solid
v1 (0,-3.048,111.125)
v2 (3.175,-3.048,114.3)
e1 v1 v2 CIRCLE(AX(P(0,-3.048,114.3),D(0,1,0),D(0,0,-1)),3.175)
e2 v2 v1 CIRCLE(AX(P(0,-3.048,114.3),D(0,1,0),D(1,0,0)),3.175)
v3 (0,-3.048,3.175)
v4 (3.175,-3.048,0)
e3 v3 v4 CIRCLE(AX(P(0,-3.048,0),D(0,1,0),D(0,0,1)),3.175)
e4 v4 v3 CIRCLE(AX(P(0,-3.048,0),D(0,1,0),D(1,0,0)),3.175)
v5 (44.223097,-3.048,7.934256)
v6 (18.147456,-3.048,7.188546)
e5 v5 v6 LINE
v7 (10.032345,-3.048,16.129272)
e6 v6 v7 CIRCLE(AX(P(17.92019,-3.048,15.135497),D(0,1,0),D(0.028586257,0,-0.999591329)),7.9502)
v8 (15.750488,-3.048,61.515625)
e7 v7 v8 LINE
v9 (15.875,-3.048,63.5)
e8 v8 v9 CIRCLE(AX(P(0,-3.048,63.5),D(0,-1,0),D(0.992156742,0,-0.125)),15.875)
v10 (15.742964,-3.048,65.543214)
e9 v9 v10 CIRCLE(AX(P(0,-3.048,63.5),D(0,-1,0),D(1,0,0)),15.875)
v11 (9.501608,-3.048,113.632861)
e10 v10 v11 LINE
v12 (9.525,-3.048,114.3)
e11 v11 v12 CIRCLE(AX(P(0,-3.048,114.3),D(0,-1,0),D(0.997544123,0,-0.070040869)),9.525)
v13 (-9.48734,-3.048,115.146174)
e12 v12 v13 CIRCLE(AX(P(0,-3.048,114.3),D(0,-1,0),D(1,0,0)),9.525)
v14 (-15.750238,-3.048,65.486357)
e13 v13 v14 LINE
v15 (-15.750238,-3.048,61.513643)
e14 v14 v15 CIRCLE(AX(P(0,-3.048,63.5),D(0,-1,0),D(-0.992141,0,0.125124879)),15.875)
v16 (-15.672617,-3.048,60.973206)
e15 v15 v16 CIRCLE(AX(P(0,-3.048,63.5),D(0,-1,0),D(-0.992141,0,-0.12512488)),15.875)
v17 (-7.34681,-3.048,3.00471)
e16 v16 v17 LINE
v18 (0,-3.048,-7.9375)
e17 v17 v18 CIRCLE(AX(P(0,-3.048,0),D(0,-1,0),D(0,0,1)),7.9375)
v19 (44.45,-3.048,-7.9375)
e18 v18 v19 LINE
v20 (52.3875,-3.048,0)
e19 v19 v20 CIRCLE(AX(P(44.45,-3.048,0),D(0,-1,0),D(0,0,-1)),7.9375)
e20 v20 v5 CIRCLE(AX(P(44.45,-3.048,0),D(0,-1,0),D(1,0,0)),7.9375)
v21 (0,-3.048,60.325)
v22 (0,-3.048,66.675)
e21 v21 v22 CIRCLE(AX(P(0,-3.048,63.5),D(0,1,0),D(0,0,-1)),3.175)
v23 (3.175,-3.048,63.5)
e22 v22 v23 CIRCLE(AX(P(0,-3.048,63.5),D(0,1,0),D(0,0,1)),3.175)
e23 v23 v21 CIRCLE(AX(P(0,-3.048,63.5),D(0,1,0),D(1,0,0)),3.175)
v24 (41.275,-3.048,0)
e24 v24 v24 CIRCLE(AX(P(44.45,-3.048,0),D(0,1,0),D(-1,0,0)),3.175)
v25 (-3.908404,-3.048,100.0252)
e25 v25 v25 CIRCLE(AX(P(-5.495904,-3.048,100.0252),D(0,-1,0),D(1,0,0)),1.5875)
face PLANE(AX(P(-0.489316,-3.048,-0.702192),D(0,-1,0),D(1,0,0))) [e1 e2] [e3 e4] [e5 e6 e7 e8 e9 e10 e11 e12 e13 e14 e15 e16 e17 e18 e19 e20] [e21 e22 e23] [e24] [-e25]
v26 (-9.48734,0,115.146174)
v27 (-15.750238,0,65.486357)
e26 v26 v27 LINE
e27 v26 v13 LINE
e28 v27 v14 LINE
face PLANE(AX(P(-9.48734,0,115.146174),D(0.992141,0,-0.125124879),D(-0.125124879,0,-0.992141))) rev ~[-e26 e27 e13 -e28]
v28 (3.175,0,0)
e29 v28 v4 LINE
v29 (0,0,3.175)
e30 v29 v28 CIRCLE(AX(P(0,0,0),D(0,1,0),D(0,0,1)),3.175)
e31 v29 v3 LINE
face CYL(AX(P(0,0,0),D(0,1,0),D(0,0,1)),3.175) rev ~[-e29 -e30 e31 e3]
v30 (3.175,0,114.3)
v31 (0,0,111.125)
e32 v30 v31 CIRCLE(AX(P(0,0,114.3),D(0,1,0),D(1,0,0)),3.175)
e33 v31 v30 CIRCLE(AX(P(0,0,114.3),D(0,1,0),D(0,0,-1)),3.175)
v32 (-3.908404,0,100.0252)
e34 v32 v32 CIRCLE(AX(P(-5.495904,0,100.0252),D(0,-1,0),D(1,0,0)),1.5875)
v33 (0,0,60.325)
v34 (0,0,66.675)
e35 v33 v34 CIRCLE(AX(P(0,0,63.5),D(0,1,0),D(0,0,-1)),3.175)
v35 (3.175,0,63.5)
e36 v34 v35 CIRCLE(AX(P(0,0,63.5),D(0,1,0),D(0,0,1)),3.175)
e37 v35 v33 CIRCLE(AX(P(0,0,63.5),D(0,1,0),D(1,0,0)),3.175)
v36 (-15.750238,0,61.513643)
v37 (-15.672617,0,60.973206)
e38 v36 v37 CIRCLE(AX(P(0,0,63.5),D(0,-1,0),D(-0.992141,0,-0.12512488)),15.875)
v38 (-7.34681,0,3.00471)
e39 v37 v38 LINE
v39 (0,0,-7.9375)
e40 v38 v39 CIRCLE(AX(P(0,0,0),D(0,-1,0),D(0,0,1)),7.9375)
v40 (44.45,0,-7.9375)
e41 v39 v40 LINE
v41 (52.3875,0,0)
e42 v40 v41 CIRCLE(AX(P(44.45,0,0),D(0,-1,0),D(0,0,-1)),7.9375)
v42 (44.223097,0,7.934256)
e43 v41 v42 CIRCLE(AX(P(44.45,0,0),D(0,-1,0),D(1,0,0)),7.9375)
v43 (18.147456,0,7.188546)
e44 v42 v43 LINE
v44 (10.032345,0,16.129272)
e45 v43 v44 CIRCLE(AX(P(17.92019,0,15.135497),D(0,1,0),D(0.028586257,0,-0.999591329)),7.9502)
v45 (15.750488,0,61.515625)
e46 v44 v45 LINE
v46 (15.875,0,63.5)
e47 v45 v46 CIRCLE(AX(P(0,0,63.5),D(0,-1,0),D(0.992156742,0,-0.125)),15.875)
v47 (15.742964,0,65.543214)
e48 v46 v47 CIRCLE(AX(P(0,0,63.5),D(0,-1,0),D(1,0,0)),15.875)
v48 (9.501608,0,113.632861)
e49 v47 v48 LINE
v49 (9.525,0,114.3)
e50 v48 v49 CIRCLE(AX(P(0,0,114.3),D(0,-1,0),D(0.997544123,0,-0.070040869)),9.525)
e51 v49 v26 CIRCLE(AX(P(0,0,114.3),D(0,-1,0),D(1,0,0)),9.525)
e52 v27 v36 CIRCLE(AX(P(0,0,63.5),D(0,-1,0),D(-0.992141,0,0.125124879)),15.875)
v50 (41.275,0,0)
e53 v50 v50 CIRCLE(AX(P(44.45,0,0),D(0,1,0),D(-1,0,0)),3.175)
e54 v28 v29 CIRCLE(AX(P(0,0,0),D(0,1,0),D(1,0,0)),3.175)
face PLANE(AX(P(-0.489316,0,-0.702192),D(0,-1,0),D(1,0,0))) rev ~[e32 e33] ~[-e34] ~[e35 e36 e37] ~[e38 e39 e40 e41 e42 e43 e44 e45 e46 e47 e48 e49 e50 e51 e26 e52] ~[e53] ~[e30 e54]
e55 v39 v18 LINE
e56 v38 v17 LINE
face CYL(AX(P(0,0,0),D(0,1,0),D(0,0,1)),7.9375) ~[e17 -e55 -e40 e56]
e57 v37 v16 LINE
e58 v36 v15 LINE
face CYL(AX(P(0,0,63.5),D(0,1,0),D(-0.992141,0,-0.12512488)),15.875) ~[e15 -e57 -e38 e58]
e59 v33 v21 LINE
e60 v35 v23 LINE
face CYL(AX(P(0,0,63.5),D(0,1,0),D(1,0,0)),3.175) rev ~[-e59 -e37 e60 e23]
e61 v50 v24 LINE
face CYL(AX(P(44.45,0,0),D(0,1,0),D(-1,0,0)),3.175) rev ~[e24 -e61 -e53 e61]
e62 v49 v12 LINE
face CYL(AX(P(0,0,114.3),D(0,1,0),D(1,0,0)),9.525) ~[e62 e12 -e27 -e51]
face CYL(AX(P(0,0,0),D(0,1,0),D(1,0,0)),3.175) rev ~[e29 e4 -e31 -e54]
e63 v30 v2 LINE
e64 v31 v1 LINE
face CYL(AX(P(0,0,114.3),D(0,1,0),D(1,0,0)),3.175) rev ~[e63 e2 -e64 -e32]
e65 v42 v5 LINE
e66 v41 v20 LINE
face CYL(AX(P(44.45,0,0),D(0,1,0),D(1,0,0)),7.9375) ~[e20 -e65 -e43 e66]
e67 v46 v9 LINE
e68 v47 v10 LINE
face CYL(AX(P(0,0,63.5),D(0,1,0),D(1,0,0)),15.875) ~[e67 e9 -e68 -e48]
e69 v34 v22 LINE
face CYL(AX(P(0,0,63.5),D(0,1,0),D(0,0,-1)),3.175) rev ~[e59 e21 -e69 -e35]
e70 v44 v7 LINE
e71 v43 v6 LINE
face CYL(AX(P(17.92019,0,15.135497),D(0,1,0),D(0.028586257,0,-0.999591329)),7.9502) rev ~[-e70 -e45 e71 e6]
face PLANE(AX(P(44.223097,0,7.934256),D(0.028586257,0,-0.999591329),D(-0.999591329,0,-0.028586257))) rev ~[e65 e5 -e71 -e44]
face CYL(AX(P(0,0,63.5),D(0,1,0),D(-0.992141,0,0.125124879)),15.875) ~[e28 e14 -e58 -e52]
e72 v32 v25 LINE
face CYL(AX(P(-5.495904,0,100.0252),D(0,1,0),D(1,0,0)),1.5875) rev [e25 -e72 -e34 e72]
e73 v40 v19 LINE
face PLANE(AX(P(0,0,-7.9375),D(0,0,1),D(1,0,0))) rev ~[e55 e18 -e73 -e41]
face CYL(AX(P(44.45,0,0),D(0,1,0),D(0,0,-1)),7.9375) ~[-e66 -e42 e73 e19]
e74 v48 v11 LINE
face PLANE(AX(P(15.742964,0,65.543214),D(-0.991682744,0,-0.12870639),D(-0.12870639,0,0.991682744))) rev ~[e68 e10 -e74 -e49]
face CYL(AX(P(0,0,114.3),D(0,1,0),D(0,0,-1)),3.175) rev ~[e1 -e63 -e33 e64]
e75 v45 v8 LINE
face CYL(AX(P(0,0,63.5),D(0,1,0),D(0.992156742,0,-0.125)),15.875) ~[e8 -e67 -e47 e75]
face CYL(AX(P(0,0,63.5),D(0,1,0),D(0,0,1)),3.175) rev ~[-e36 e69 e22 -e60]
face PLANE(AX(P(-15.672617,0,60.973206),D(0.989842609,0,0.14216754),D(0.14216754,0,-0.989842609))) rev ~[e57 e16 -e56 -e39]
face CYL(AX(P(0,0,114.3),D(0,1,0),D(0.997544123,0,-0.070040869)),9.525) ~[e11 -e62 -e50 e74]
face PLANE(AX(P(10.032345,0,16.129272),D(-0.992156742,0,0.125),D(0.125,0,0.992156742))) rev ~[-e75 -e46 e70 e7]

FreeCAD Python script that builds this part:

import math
import FreeCAD as App
import Part
import Sketcher
from FreeCAD import Vector
Q = App.Units.Quantity

doc = App.newDocument("Part")
body = doc.addObject("PartDesign::Body", "Body")

# Sketch on XZ plane
sketch1 = doc.addObject("Sketcher::SketchObject", "Sketch")
body.addObject(sketch1)
sketch1.AttachmentSupport = (doc.XZ_Plane, [""])
sketch1.MapMode = "FlatFace"
sketch1.addGeometry(Part.ArcOfCircle(Part.Circle(Vector(0, 0, 0), Vector(0, 0, 1), 7.9375), math.radians(157.756344), math.radians(270)), False)
sketch1.addGeometry(Part.LineSegment(Vector(0, -7.9375, 0), Vector(44.45, -7.9375, 0)), False)
sketch1.addGeometry(Part.ArcOfCircle(Part.Circle(Vector(44.45, 0, 0), Vector(0, 0, 1), 7.9375), math.radians(-90), math.radians(0)), False)
sketch1.addGeometry(Part.ArcOfCircle(Part.Circle(Vector(44.45, 0, 0), Vector(0, 0, 1), 7.9375), math.radians(0), math.radians(91.638095)), False)
sketch1.addGeometry(Part.LineSegment(Vector(44.223097, 7.934256, 0), Vector(18.147456, 7.188546, 0)), False)
sketch1.addGeometry(Part.ArcOfCircle(Part.Circle(Vector(17.92019, 15.135497, 0), Vector(0, 0, 1), 7.9502), math.radians(172.819244), math.radians(271.638095)), False)
sketch1.addGeometry(Part.LineSegment(Vector(10.032345, 16.129272, 0), Vector(15.750488, 61.515625, 0)), False)
sketch1.addGeometry(Part.ArcOfCircle(Part.Circle(Vector(0, 63.5, 0), Vector(0, 0, 1), 15.875), math.radians(-7.180756), math.radians(0)), False)
sketch1.addGeometry(Part.ArcOfCircle(Part.Circle(Vector(0, 63.5, 0), Vector(0, 0, 1), 15.875), math.radians(0), math.radians(7.394846)), False)
sketch1.addGeometry(Part.LineSegment(Vector(15.742964, 65.543214, 0), Vector(9.501608, 113.632861, 0)), False)
sketch1.addGeometry(Part.ArcOfCircle(Part.Circle(Vector(0, 114.3, 0), Vector(0, 0, 1), 9.525), math.radians(-4.016335), math.radians(0)), False)
sketch1.addGeometry(Part.ArcOfCircle(Part.Circle(Vector(0, 114.3, 0), Vector(0, 0, 1), 9.525), math.radians(0), math.radians(174.903285)), False)
sketch1.addGeometry(Part.LineSegment(Vector(-9.48734, 115.146174, 0), Vector(-15.750238, 65.486357, 0)), False)
sketch1.addGeometry(Part.ArcOfCircle(Part.Circle(Vector(0, 63.5, 0), Vector(0, 0, 1), 15.875), math.radians(172.812033), math.radians(187.187967)), False)
sketch1.addGeometry(Part.ArcOfCircle(Part.Circle(Vector(0, 63.5, 0), Vector(0, 0, 1), 15.875), math.radians(-172.812033), math.radians(-170.841384)), False)
sketch1.addGeometry(Part.LineSegment(Vector(-15.672617, 60.973206, 0), Vector(-7.34681, 3.00471, 0)), False)
sketch1.addGeometry(Part.ArcOfCircle(Part.Circle(Vector(0, 0, 0), Vector(0, 0, 1), 3.175), math.radians(90), math.radians(360)), False)
sketch1.addGeometry(Part.ArcOfCircle(Part.Circle(Vector(0, 0, 0), Vector(0, 0, 1), 3.175), math.radians(0), math.radians(90)), False)
sketch1.addGeometry(Part.Circle(Vector(44.45, 0, 0), Vector(0, 0, 1), 3.175), False)
sketch1.addGeometry(Part.ArcOfCircle(Part.Circle(Vector(0, 63.5, 0), Vector(0, 0, 1), 3.175), math.radians(90), math.radians(270)), False)
sketch1.addGeometry(Part.ArcOfCircle(Part.Circle(Vector(0, 63.5, 0), Vector(0, 0, 1), 3.175), math.radians(0), math.radians(90)), False)
sketch1.addGeometry(Part.ArcOfCircle(Part.Circle(Vector(0, 63.5, 0), Vector(0, 0, 1), 3.175), math.radians(-90), math.radians(0)), False)
sketch1.addGeometry(Part.Circle(Vector(-5.495904, 100.0252, 0), Vector(0, 0, 1), 1.5875), False)
sketch1.addGeometry(Part.ArcOfCircle(Part.Circle(Vector(0, 114.3, 0), Vector(0, 0, 1), 3.175), math.radians(0), math.radians(270)), False)
sketch1.addGeometry(Part.ArcOfCircle(Part.Circle(Vector(0, 114.3, 0), Vector(0, 0, 1), 3.175), math.radians(-90), math.radians(0)), False)
sketch1.addConstraint(Sketcher.Constraint("Tangent", 0, 2, 1, 1))
sketch1.addConstraint(Sketcher.Constraint("Tangent", 1, 2, 2, 1))
sketch1.addConstraint(Sketcher.Constraint("Tangent", 2, 2, 3, 1))
sketch1.addConstraint(Sketcher.Constraint("Tangent", 3, 2, 4, 1))
sketch1.addConstraint(Sketcher.Constraint("Tangent", 4, 2, 5, 2))
sketch1.addConstraint(Sketcher.Constraint("Tangent", 5, 1, 6, 1))
sketch1.addConstraint(Sketcher.Constraint("Tangent", 6, 2, 7, 1))
sketch1.addConstraint(Sketcher.Constraint("Tangent", 7, 2, 8, 1))
sketch1.addConstraint(Sketcher.Constraint("Tangent", 8, 2, 9, 1))
sketch1.addConstraint(Sketcher.Constraint("Coincident", 9, 2, 10, 1))
sketch1.addConstraint(Sketcher.Constraint("Tangent", 10, 2, 11, 1))
sketch1.addConstraint(Sketcher.Constraint("Coincident", 11, 2, 12, 1))
sketch1.addConstraint(Sketcher.Constraint("Tangent", 12, 2, 13, 1))
sketch1.addConstraint(Sketcher.Constraint("Tangent", 13, 2, 14, 1))
sketch1.addConstraint(Sketcher.Constraint("Coincident", 14, 2, 15, 1))
sketch1.addConstraint(Sketcher.Constraint("Coincident", 15, 2, 0, 1))
sketch1.addConstraint(Sketcher.Constraint("Tangent", 16, 1, 17, 2))
sketch1.addConstraint(Sketcher.Constraint("Coincident", 17, 1, 16, 2))
sketch1.addConstraint(Sketcher.Constraint("Tangent", 19, 1, 20, 2))
sketch1.addConstraint(Sketcher.Constraint("Tangent", 20, 1, 21, 2))
sketch1.addConstraint(Sketcher.Constraint("Tangent", 21, 1, 19, 2))
sketch1.addConstraint(Sketcher.Constraint("Tangent", 23, 1, 24, 2))
sketch1.addConstraint(Sketcher.Constraint("Coincident", 24, 1, 23, 2))
sketch1.addConstraint(Sketcher.Constraint("Horizontal", 1))
sketch1.addConstraint(Sketcher.Constraint("Coincident", 0, 3, -1, 1))
sketch1.addConstraint(Sketcher.Constraint("Coincident", 16, 3, -1, 1))
sketch1.addConstraint(Sketcher.Constraint("Coincident", 13, 3, 7, 3))
sketch1.addConstraint(Sketcher.Constraint("Coincident", 18, 3, 2, 3))
sketch1.addConstraint(Sketcher.Constraint("Coincident", 19, 3, 7, 3))
sketch1.addConstraint(Sketcher.Constraint("Coincident", 23, 3, 10, 3))
sketch1.addConstraint(Sketcher.Constraint("Equal", 0, 2))
sketch1.addConstraint(Sketcher.Constraint("Equal", 2, 3))
sketch1.addConstraint(Sketcher.Constraint("Equal", 7, 8))
sketch1.addConstraint(Sketcher.Constraint("Equal", 10, 11))
sketch1.addConstraint(Sketcher.Constraint("Equal", 8, 13))
sketch1.addConstraint(Sketcher.Constraint("Equal", 13, 14))
sketch1.addConstraint(Sketcher.Constraint("Equal", 17, 18))
sketch1.addConstraint(Sketcher.Constraint("Equal", 18, 19))
sketch1.addConstraint(Sketcher.Constraint("Equal", 21, 23))
sketch1.addConstraint(Sketcher.Constraint("PointOnObject", 7, 3, -2))
sketch1.addConstraint(Sketcher.Constraint("PointOnObject", 10, 3, -2))
sketch1.addConstraint(Sketcher.Constraint("PointOnObject", 2, 2, -1))
sketch1.addConstraint(Sketcher.Constraint("PointOnObject", 16, 1, -2))
sketch1.addConstraint(Sketcher.Constraint("PointOnObject", 17, 1, -1))
sketch1.addConstraint(Sketcher.Constraint("PointOnObject", 19, 1, -2))
sketch1.addConstraint(Sketcher.Constraint("PointOnObject", 21, 1, -2))
sketch1.addConstraint(Sketcher.Constraint("PointOnObject", 24, 1, -2))
sketch1.addConstraint(Sketcher.Constraint("Horizontal", 21, 3, 7, 2))
sketch1.addConstraint(Sketcher.Constraint("Horizontal", 24, 3, 10, 2))
sketch1.addConstraint(Sketcher.Constraint("Horizontal", 7, 2, 20, 1))
sketch1.addConstraint(Sketcher.Constraint("Horizontal", 10, 2, 23, 1))
sketch1.addConstraint(Sketcher.Constraint("Vertical", 12, 2, 13, 2))
sketch1.addConstraint(Sketcher.Constraint("Diameter", 18, Q("0.25 in")))
sketch1.addConstraint(Sketcher.Constraint("Diameter", 22, Q("0.125 in")))
sketch1.addConstraint(Sketcher.Constraint("Radius", 0, Q("0.3125 in")))
sketch1.addConstraint(Sketcher.Constraint("Radius", 5, Q("0.313 in")))
sketch1.addConstraint(Sketcher.Constraint("Radius", 7, Q("0.625 in")))
sketch1.addConstraint(Sketcher.Constraint("Radius", 10, Q("0.375 in")))
sketch1.addConstraint(Sketcher.Constraint("DistanceY", 7, 3, 10, 3, Q("2 in")))
sketch1.addConstraint(Sketcher.Constraint("DistanceX", 1, 1, 1, 2, Q("1.75 in")))
sketch1.addConstraint(Sketcher.Constraint("DistanceY", -1, 1, 7, 3, Q("2.5 in")))
sketch1.addConstraint(Sketcher.Constraint("DistanceY", -1, 1, 22, 3, Q("3.938 in")))
sketch1.addConstraint(Sketcher.Constraint("DistanceY", -1, 1, 6, 2, Q("2.421875 in")))
sketch1.addConstraint(Sketcher.Constraint("Distance", 4, Q("26.086301 mm")))
sketch1.addConstraint(Sketcher.Constraint("DistanceY", -1, 1, 9, 2, Q("113.632861 mm")))
sketch1.addConstraint(Sketcher.Constraint("DistanceX", 11, 2, -1, 1, Q("9.48734 mm")))
sketch1.addConstraint(Sketcher.Constraint("DistanceX", 15, 2, -1, 1, Q("7.34681 mm")))
sketch1.addConstraint(Sketcher.Constraint("DistanceX", 22, 3, 9, 2, Q("14.997512 mm")))
sketch1.addConstraint(Sketcher.Constraint("DistanceX", 13, 2, 14, 2, Q("0.077621 mm")))
pad1 = doc.addObject("PartDesign::Pad", "Pad")
body.addObject(pad1)
pad1.Profile = sketch1
pad1.Length = Q("0.12 in")

doc.recompute()
